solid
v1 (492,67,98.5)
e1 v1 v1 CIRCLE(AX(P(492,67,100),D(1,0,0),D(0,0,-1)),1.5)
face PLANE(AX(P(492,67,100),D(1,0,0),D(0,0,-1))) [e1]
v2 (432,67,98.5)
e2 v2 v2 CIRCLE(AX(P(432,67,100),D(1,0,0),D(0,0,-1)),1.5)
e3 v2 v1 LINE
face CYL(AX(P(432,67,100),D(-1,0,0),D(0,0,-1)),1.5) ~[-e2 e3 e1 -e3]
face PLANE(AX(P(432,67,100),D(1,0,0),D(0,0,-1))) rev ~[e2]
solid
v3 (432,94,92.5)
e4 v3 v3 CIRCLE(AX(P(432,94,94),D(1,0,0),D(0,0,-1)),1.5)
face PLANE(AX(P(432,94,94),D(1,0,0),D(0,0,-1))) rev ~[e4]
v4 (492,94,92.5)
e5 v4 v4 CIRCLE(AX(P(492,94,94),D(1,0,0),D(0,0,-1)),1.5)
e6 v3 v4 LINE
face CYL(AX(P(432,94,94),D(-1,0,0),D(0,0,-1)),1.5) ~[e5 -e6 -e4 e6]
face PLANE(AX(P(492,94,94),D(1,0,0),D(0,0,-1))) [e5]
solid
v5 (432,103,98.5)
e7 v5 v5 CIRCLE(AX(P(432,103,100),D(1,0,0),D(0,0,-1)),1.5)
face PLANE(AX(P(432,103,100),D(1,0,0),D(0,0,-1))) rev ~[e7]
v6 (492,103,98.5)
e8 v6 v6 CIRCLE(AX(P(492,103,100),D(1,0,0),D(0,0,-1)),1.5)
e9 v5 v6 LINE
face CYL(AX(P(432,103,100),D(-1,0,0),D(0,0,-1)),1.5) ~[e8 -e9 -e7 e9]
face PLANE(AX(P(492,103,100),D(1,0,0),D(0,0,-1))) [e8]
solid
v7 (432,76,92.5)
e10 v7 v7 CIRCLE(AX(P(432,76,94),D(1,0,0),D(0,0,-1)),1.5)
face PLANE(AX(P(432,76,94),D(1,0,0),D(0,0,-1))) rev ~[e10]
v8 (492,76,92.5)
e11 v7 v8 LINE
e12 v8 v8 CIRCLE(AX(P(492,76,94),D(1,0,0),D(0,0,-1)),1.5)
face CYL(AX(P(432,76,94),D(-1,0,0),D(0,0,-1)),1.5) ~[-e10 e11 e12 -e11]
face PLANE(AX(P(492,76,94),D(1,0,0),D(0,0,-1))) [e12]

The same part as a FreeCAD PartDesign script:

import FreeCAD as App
import Part
import Sketcher

V = App.Vector

doc = App.newDocument("Part")
params = doc.addObject("Spreadsheet::Sheet", "Params")
for row, (alias, value) in enumerate([
    ("sketch1_diameter", "3 mm"),
    ("pad1_length", "60 mm"),
    ("sketch2_diameter", "3 mm"),
    ("pad2_length", "60 mm"),
    ("sketch3_diameter", "3 mm"),
    ("pad3_length", "60 mm"),
    ("sketch4_diameter", "3 mm"),
    ("pad4_length", "60 mm"),
], start=1):
    params.set(f"A{row}", alias)
    params.set(f"B{row}", "=" + value)
    params.setAlias(f"B{row}", alias)

body = doc.addObject("PartDesign::Body", "Body")

# Sketch on YZ plane
sketch1 = body.newObject("Sketcher::SketchObject", "Sketch")
sketch1.AttachmentSupport = (doc.getObject("YZ_Plane"), [""])
sketch1.MapMode = "FlatFace"
sketch1.AttachmentOffset = App.Placement(V(0, 0, 432), App.Rotation())
sketch1.addGeometry(Part.Circle(V(67, 100, 0), V(0, 0, 1), 1.5), False)
sketch1.addConstraint(Sketcher.Constraint("Diameter", 0, 3.0))
sketch1.addConstraint(Sketcher.Constraint("DistanceX", -1, 1, 0, 3, 67.0))
sketch1.addConstraint(Sketcher.Constraint("DistanceY", -1, 1, 0, 3, 100.0))
sketch1.setExpression("Constraints[0]", "Params.sketch1_diameter")
pad1 = body.newObject("PartDesign::Pad", "Pad")
pad1.Profile = sketch1
pad1.setExpression("Length", "Params.pad1_length")
body2 = doc.addObject("PartDesign::Body", "Body001")

# Sketch on YZ plane
sketch2 = body2.newObject("Sketcher::SketchObject", "Sketch001")
sketch2.AttachmentSupport = (doc.getObject("YZ_Plane001"), [""])
sketch2.MapMode = "FlatFace"
sketch2.AttachmentOffset = App.Placement(V(0, 0, 432), App.Rotation())
sketch2.addGeometry(Part.Circle(V(94, 94, 0), V(0, 0, 1), 1.5), False)
sketch2.addConstraint(Sketcher.Constraint("Diameter", 0, 3.0))
sketch2.addConstraint(Sketcher.Constraint("DistanceX", -1, 1, 0, 3, 94.0))
sketch2.addConstraint(Sketcher.Constraint("DistanceY", -1, 1, 0, 3, 94.0))
sketch2.setExpression("Constraints[0]", "Params.sketch2_diameter")
pad2 = body2.newObject("PartDesign::Pad", "Pad001")
pad2.Profile = sketch2
pad2.setExpression("Length", "Params.pad2_length")
body3 = doc.addObject("PartDesign::Body", "Body002")

# Sketch on YZ plane
sketch3 = body3.newObject("Sketcher::SketchObject", "Sketch002")
sketch3.AttachmentSupport = (doc.getObject("YZ_Plane002"), [""])
sketch3.MapMode = "FlatFace"
sketch3.AttachmentOffset = App.Placement(V(0, 0, 432), App.Rotation())
sketch3.addGeometry(Part.Circle(V(76, 94, 0), V(0, 0, 1), 1.5), False)
sketch3.addConstraint(Sketcher.Constraint("Diameter", 0, 3.0))
sketch3.addConstraint(Sketcher.Constraint("DistanceX", -1, 1, 0, 3, 76.0))
sketch3.addConstraint(Sketcher.Constraint("DistanceY", -1, 1, 0, 3, 94.0))
sketch3.setExpression("Constraints[0]", "Params.sketch3_diameter")
pad3 = body3.newObject("PartDesign::Pad", "Pad002")
pad3.Profile = sketch3
pad3.setExpression("Length", "Params.pad3_length")
body4 = doc.addObject("PartDesign::Body", "Body003")
body4.AllowCompound = True

# Sketch on YZ plane
sketch4 = body4.newObject("Sketcher::SketchObject", "Sketch003")
sketch4.AttachmentSupport = (doc.getObject("YZ_Plane003"), [""])
sketch4.MapMode = "FlatFace"
sketch4.AttachmentOffset = App.Placement(V(0, 0, 432), App.Rotation())
sketch4.addGeometry(Part.Circle(V(103, 100, 0), V(0, 0, 1), 1.5), False)
sketch4.addConstraint(Sketcher.Constraint("Diameter", 0, 3.0))
sketch4.addConstraint(Sketcher.Constraint("DistanceX", -1, 1, 0, 3, 103.0))
sketch4.addConstraint(Sketcher.Constraint("DistanceY", -1, 1, 0, 3, 100.0))
sketch4.setExpression("Constraints[0]", "Params.sketch4_diameter")
pad4 = body4.newObject("PartDesign::Pad", "Pad003")
pad4.Profile = sketch4
pad4.setExpression("Length", "Params.pad4_length")
doc.recompute()

boolean = body4.newObject("PartDesign::Boolean", "Boolean")
boolean.Type = "Fuse"
boolean.addObjects([body])
doc.recompute()

boolean2 = body4.newObject("PartDesign::Boolean", "Boolean001")
boolean2.Type = "Fuse"
boolean2.addObjects([body2])
doc.recompute()

boolean3 = body4.newObject("PartDesign::Boolean", "Boolean002")
boolean3.Type = "Fuse"
boolean3.addObjects([body3])

doc.recompute()
